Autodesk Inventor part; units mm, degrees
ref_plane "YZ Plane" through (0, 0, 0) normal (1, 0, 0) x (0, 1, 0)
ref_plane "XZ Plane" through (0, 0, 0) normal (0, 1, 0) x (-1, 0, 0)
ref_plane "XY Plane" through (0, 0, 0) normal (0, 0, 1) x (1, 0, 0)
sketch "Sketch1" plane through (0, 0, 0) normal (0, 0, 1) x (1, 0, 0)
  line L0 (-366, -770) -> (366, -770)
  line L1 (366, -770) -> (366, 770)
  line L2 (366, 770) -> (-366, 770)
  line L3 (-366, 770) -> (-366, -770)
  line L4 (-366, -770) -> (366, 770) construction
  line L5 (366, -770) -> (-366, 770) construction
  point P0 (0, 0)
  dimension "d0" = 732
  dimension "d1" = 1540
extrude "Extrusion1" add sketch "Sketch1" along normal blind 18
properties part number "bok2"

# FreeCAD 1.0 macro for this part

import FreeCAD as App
import Part
import Sketcher
from FreeCAD import Vector
Q = App.Units.Quantity

doc = App.newDocument("Part")
body = doc.addObject("PartDesign::Body", "Body")

# Sketch on XY plane
sketch1 = doc.addObject("Sketcher::SketchObject", "Sketch")
body.addObject(sketch1)
sketch1.AttachmentSupport = (doc.XY_Plane, [""])
sketch1.MapMode = "FlatFace"
sketch1.addGeometry([
    Part.LineSegment(Vector(-366, 770, 0), Vector(-366, -770, 0)),
    Part.LineSegment(Vector(-366, -770, 0), Vector(366, -770, 0)),
    Part.LineSegment(Vector(366, -770, 0), Vector(366, 770, 0)),
    Part.LineSegment(Vector(366, 770, 0), Vector(-366, 770, 0)),
], False)
sketch1.addConstraint([
    Sketcher.Constraint("Coincident", 0, 2, 1, 1),
    Sketcher.Constraint("Coincident", 1, 2, 2, 1),
    Sketcher.Constraint("Coincident", 2, 2, 3, 1),
    Sketcher.Constraint("Coincident", 3, 2, 0, 1),
    Sketcher.Constraint("Vertical", 0),
    Sketcher.Constraint("Horizontal", 1),
    Sketcher.Constraint("Vertical", 2),
    Sketcher.Constraint("Horizontal", 3),
    Sketcher.Constraint("Symmetric", 0, 2, 2, 2, -1, 1),
    Sketcher.Constraint("DistanceX", 1, 1, 1, 2, Q("732 mm")),
    Sketcher.Constraint("DistanceY", 0, 2, 0, 1, Q("1540 mm")),
])
pad1 = doc.addObject("PartDesign::Pad", "Pad")
body.addObject(pad1)
pad1.Profile = sketch1
pad1.Length = 18

doc.recompute()
